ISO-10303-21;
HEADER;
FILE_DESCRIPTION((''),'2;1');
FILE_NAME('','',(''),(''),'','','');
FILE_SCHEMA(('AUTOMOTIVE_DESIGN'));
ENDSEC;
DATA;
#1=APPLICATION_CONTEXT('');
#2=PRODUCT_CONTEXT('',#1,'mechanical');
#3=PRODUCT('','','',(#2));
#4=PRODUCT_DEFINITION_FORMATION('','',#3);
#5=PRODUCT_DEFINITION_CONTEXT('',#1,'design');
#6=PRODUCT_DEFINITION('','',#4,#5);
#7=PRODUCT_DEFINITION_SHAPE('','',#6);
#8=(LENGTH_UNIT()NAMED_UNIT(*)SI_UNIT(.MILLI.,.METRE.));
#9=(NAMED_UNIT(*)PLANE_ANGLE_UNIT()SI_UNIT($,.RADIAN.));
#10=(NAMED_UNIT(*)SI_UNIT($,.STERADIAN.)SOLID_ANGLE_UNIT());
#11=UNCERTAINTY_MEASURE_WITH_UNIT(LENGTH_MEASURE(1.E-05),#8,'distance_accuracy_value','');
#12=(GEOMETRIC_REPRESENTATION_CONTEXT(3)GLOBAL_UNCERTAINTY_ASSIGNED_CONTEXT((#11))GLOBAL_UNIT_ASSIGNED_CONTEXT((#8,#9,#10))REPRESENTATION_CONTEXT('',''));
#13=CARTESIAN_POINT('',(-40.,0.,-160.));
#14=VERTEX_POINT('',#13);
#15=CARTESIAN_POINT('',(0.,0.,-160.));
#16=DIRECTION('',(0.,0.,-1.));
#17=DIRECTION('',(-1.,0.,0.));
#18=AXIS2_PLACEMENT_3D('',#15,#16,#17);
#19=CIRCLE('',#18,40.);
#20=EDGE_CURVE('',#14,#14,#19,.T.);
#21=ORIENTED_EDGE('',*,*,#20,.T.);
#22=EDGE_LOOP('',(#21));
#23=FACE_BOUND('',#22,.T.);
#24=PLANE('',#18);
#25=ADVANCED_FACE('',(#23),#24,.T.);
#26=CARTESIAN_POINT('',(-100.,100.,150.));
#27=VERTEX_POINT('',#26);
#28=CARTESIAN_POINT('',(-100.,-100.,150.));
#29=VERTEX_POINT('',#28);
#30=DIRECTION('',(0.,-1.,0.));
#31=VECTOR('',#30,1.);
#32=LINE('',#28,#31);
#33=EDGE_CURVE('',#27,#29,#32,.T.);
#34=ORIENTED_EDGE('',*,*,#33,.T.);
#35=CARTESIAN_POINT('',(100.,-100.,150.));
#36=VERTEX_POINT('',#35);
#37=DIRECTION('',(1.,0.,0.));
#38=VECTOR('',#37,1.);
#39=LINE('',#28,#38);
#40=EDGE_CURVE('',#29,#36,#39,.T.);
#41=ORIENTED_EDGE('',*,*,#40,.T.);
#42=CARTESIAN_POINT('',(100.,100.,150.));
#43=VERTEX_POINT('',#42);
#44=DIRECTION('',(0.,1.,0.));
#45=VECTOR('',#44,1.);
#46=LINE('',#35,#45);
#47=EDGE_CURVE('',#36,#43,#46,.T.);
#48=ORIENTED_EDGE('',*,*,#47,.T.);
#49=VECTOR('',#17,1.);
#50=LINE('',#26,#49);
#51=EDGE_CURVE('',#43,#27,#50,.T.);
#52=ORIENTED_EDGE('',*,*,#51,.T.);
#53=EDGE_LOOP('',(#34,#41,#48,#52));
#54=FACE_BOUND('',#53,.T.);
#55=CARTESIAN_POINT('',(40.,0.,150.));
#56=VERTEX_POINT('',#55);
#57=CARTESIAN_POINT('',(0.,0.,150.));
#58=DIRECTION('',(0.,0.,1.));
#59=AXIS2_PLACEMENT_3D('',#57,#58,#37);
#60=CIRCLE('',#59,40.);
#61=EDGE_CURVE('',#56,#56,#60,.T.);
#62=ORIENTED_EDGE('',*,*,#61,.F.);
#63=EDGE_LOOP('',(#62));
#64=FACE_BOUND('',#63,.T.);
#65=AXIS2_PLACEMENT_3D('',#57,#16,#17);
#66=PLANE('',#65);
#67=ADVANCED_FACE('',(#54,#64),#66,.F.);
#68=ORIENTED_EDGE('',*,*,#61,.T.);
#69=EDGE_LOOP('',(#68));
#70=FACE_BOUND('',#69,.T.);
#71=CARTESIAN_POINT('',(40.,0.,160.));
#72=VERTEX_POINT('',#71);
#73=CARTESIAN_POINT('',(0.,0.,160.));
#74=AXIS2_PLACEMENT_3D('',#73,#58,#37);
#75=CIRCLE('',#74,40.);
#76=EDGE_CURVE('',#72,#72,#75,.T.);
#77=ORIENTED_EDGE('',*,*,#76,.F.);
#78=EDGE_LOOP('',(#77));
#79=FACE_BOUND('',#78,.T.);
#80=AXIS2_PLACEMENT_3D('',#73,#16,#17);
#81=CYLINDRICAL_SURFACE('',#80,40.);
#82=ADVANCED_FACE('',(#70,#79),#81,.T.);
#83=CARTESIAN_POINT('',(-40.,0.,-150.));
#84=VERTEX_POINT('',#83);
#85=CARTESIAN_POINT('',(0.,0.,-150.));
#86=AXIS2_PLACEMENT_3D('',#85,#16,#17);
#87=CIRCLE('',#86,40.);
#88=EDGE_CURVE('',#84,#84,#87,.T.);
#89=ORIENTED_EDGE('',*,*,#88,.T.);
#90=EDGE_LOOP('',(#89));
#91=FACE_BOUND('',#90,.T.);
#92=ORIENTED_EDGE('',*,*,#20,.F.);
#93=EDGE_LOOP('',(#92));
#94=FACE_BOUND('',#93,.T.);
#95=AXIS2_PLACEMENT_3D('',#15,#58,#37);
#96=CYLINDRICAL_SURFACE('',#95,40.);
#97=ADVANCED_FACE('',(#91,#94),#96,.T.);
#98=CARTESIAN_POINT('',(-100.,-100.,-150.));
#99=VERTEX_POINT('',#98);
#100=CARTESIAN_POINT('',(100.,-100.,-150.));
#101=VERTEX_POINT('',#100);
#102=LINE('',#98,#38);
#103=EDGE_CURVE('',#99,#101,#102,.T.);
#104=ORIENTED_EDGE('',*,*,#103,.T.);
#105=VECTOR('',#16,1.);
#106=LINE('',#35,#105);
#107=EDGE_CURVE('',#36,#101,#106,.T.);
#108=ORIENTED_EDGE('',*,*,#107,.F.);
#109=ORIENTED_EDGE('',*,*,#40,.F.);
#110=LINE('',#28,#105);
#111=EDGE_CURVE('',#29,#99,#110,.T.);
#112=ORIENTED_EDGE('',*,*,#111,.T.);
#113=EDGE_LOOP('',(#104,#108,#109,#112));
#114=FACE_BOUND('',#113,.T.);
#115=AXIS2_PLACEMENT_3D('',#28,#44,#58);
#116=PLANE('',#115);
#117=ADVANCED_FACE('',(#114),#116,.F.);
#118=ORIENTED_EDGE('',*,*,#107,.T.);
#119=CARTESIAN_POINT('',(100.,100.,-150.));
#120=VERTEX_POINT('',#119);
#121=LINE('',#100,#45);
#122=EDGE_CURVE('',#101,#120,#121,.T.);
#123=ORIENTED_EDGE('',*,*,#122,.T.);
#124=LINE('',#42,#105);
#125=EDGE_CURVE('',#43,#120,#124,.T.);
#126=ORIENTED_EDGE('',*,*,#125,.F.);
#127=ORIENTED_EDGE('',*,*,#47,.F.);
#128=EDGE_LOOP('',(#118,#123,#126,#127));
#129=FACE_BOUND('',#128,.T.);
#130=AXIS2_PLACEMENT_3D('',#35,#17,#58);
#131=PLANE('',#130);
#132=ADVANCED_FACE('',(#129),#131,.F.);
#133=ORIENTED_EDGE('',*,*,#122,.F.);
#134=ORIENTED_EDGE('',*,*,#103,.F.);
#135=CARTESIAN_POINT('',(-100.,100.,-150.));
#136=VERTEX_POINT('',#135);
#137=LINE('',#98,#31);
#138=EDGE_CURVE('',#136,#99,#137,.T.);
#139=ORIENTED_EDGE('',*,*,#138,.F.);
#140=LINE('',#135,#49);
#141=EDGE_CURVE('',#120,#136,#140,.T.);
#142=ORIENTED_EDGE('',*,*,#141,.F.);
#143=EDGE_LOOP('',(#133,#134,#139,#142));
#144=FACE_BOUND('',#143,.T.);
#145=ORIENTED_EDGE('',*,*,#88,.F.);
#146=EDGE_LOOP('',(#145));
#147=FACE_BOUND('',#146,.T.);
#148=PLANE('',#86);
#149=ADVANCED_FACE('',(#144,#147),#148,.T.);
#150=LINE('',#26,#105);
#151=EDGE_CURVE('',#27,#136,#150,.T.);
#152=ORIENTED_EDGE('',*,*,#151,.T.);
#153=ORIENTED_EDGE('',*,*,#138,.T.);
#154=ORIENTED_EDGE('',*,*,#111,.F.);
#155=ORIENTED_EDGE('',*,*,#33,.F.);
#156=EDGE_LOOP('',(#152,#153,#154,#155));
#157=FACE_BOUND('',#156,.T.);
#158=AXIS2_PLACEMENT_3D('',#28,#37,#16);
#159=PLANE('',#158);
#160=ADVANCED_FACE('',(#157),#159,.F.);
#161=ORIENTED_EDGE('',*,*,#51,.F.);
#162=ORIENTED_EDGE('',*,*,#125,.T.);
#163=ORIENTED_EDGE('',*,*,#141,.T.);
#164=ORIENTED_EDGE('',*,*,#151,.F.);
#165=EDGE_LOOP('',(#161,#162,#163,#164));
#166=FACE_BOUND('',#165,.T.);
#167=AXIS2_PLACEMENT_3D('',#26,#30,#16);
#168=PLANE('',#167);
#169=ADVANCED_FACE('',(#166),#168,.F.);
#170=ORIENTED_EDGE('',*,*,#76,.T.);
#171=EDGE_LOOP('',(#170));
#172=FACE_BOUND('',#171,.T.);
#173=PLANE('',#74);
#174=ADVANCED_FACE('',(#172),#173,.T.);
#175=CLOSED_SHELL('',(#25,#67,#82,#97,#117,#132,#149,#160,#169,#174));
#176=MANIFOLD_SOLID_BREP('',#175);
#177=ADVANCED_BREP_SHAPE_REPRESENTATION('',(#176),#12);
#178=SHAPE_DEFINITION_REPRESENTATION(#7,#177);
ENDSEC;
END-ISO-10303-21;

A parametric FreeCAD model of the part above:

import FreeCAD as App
import Part
import Sketcher
from FreeCAD import Vector

doc = App.newDocument("Part")
body = doc.addObject("PartDesign::Body", "Body")

# Sketch on XY plane
sketch1 = body.newObject("Sketcher::SketchObject", "Sketch")
sketch1.AttachmentSupport = (doc.getObject("XY_Plane"), [""])
sketch1.MapMode = "FlatFace"
sketch1.addGeometry([
    Part.LineSegment(Vector(-100, 100, 0), Vector(-100, -100, 0)),
    Part.LineSegment(Vector(-100, -100, 0), Vector(100, -100, 0)),
    Part.LineSegment(Vector(100, -100, 0), Vector(100, 100, 0)),
    Part.LineSegment(Vector(100, 100, 0), Vector(-100, 100, 0)),
], False)
sketch1.addConstraint([
    Sketcher.Constraint("Coincident", 0, 2, 1, 1),
    Sketcher.Constraint("Coincident", 1, 2, 2, 1),
    Sketcher.Constraint("Coincident", 2, 2, 3, 1),
    Sketcher.Constraint("Coincident", 3, 2, 0, 1),
    Sketcher.Constraint("Vertical", 0),
    Sketcher.Constraint("Horizontal", 1),
    Sketcher.Constraint("Vertical", 2),
    Sketcher.Constraint("Horizontal", 3),
    Sketcher.Constraint("Symmetric", 0, 2, 2, 2, -1, 1),
    Sketcher.Constraint("Equal", 3, 0),
    Sketcher.Constraint("DistanceX", 1, 1, 1, 2, 200.0),
])
pad1 = body.newObject("PartDesign::Pad", "Pad")
pad1.Profile = sketch1
pad1.Length = 300
pad1.Midplane = True

# Sketch on XY plane
sketch2 = body.newObject("Sketcher::SketchObject", "Sketch001")
sketch2.AttachmentSupport = (doc.getObject("XY_Plane"), [""])
sketch2.MapMode = "FlatFace"
sketch2.AttachmentOffset = App.Placement(Vector(0, 0, 150), App.Rotation())
sketch2.addGeometry(Part.Circle(Vector(0, 0, 0), Vector(0, 0, 1), 40), False)
sketch2.addConstraint([
    Sketcher.Constraint("Coincident", 0, 3, -1, 1),
    Sketcher.Constraint("Diameter", 0, 80.0),
])
pad2 = body.newObject("PartDesign::Pad", "Pad001")
pad2.Profile = sketch2
pad2.Length = 10

# Sketch on XY plane
sketch3 = body.newObject("Sketcher::SketchObject", "Sketch002")
sketch3.AttachmentSupport = (doc.getObject("XY_Plane"), [""])
sketch3.MapMode = "FlatFace"
sketch3.AttachmentOffset = App.Placement(Vector(0, 0, -160), App.Rotation())
sketch3.addGeometry(Part.Circle(Vector(0, 0, 0), Vector(0, 0, 1), 40), False)
sketch3.addConstraint([
    Sketcher.Constraint("Coincident", 0, 3, -1, 1),
    Sketcher.Constraint("Diameter", 0, 80.0),
])
pad3 = body.newObject("PartDesign::Pad", "Pad002")
pad3.Profile = sketch3
pad3.Length = 10

doc.recompute()
